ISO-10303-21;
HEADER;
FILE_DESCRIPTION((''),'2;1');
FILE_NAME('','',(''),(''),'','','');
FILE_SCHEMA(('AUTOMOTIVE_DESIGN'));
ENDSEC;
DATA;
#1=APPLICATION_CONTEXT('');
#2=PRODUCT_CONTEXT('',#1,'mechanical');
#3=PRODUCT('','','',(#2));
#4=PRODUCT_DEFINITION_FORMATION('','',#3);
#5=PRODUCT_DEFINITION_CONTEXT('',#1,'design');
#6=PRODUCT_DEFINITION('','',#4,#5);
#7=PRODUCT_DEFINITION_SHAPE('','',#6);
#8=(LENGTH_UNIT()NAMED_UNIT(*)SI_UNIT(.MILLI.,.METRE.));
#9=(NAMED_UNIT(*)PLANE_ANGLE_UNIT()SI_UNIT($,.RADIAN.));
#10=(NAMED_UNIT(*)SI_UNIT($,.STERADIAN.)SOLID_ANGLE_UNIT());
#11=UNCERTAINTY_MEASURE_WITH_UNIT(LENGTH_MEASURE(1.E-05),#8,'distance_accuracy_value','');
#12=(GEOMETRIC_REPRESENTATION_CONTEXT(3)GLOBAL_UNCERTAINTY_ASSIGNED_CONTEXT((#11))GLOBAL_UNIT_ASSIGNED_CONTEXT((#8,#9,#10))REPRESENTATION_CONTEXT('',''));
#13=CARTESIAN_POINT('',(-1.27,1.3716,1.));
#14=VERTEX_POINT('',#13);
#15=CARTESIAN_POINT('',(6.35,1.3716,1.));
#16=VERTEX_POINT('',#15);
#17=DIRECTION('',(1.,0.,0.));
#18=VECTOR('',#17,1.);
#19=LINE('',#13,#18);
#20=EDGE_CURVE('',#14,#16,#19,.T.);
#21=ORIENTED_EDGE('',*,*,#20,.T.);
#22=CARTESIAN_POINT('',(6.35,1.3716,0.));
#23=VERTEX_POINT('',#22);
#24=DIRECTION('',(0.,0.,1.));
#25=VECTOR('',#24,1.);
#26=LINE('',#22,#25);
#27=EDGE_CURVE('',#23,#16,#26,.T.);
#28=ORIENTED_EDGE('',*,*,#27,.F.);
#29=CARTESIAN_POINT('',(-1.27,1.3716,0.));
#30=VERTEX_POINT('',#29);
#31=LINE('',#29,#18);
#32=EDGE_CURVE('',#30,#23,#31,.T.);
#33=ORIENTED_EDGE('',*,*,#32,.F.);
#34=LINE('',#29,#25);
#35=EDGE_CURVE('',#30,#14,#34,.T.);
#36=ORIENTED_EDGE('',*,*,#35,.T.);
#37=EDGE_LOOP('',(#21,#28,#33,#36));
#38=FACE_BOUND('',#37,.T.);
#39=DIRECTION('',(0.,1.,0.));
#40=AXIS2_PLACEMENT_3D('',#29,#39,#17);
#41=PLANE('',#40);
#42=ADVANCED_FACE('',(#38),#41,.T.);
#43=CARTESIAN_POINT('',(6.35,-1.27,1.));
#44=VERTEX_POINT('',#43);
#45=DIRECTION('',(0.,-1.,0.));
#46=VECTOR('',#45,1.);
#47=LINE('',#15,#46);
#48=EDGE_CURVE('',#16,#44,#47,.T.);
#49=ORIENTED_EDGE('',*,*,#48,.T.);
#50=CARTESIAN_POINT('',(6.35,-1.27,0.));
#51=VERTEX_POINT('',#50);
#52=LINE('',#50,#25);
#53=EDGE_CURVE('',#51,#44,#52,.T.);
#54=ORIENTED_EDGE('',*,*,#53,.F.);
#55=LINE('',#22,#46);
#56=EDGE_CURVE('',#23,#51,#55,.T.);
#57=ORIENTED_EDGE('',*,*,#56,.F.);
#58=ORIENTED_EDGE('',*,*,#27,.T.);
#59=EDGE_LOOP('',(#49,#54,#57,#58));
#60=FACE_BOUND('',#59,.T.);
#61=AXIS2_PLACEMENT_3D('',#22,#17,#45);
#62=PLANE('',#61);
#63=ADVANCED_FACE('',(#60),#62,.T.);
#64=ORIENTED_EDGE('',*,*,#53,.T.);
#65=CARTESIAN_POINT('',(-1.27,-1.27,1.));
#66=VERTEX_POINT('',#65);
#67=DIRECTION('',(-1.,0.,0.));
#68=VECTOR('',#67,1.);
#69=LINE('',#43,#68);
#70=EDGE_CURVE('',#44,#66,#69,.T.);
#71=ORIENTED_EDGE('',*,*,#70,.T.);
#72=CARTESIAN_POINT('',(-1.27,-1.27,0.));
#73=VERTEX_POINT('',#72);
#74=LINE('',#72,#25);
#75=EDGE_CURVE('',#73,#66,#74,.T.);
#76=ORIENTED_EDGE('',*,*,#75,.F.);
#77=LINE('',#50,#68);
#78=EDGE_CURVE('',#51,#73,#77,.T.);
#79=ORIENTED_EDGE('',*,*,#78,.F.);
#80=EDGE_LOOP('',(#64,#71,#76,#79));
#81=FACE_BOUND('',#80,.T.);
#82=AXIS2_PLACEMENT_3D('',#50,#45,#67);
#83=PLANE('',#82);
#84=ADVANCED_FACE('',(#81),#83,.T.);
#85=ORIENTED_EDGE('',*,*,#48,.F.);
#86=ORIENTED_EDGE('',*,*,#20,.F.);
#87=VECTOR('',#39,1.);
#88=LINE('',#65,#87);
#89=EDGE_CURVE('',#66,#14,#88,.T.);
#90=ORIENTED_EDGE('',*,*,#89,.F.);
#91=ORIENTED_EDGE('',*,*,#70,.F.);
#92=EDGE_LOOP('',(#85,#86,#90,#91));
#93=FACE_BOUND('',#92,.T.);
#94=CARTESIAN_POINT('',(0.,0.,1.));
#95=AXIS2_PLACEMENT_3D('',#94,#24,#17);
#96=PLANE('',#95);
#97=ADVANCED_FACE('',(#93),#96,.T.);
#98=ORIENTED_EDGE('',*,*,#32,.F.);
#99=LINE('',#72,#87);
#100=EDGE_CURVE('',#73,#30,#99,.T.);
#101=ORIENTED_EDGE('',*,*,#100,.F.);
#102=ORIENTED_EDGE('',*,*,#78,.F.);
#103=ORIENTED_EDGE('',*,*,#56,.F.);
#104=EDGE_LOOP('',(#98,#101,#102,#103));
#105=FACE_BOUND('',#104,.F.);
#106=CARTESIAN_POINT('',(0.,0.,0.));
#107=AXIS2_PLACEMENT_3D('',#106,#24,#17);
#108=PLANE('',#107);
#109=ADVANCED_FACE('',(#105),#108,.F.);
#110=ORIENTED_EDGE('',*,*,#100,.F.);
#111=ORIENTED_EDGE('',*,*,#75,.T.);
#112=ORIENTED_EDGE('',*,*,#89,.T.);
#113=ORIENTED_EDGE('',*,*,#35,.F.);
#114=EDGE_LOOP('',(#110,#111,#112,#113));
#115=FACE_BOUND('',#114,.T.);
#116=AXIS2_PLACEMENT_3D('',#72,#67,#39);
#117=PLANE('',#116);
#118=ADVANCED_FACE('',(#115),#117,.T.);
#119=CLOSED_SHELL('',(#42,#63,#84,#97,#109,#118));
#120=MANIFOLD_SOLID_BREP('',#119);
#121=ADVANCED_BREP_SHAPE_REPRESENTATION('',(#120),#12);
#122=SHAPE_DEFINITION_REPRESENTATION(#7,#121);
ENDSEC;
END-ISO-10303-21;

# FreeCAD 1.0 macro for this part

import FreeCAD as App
import Part
import Sketcher
Q = App.Units.Quantity

doc = App.newDocument("Part")
body = doc.addObject("PartDesign::Body", "Body")

sketch1 = body.newObject("Sketcher::SketchObject", "Sketch")
sketch1.AttachmentSupport = (doc.getObject("XY_Plane"), [""])
sketch1.MapMode = "FlatFace"
sketch1.addGeometry([
    Part.LineSegment(App.Vector(6.3, 1.4, 0), App.Vector(-1.3, 1.4, 0)),
    Part.LineSegment(App.Vector(-1.3, 1.4, 0), App.Vector(-1.3, -1.3, 0)),
    Part.LineSegment(App.Vector(-1.3, -1.3, 0), App.Vector(6.3, -1.3, 0)),
    Part.LineSegment(App.Vector(6.3, -1.3, 0), App.Vector(6.3, 1.4, 0)),
], False)
sketch1.addConstraint([
    Sketcher.Constraint("Coincident", 0, 2, 1, 1),
    Sketcher.Constraint("Coincident", 1, 2, 2, 1),
    Sketcher.Constraint("Coincident", 2, 2, 3, 1),
    Sketcher.Constraint("Coincident", 3, 2, 0, 1),
    Sketcher.Constraint("Horizontal", 0),
    Sketcher.Constraint("Vertical", 1),
    Sketcher.Constraint("Horizontal", 2),
    Sketcher.Constraint("Vertical", 3),
    Sketcher.Constraint("DistanceX", 0, 2, 0, 1, Q("0.3 in")),
    Sketcher.Constraint("DistanceY", 1, 2, 1, 1, Q("0.104 in")),
    Sketcher.Constraint("DistanceX", 0, 2, -1, 1, Q("0.05 in")),
    Sketcher.Constraint("DistanceY", 1, 2, -1, 1, Q("0.05 in")),
])
pad1 = body.newObject("PartDesign::Pad", "Pad")
pad1.Profile = sketch1
pad1.Length = 1

doc.recompute()
